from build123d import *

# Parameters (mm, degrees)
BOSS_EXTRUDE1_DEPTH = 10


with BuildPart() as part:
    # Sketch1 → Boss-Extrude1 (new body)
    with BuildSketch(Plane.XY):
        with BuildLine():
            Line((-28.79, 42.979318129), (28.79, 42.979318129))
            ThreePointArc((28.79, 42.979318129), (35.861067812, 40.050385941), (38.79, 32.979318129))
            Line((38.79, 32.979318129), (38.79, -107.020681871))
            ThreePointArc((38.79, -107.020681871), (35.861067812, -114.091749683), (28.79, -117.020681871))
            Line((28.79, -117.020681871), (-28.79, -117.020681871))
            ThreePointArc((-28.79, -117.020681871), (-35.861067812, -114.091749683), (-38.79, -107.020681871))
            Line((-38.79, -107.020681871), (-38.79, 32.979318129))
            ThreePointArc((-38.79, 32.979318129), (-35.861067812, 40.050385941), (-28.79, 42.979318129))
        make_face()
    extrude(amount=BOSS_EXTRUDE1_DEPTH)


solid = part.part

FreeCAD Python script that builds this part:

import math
import FreeCAD as App
import Part
import Sketcher

V = App.Vector

doc = App.newDocument("Part")
body = doc.addObject("PartDesign::Body", "Body")

# Sketch on XY plane
sketch1 = body.newObject("Sketcher::SketchObject", "Sketch")
sketch1.AttachmentSupport = (doc.getObject("XY_Plane"), [""])
sketch1.MapMode = "FlatFace"
sketch1.addGeometry(Part.LineSegment(V(29, 43, 0), V(-29, 43, 0)), False)
sketch1.addGeometry(Part.ArcOfCircle(Part.Circle(V(-29, 33, 0), V(0, 0, 1), 10), math.radians(90), math.radians(180)), False)
sketch1.addGeometry(Part.LineSegment(V(-39, 33, 0), V(-39, -107, 0)), False)
sketch1.addGeometry(Part.ArcOfCircle(Part.Circle(V(-29, -107, 0), V(0, 0, 1), 10), math.radians(180), math.radians(270)), False)
sketch1.addGeometry(Part.LineSegment(V(-29, -117, 0), V(29, -117, 0)), False)
sketch1.addGeometry(Part.ArcOfCircle(Part.Circle(V(29, -107, 0), V(0, 0, 1), 10), math.radians(-90), math.radians(0)), False)
sketch1.addGeometry(Part.LineSegment(V(39, -107, 0), V(39, 33, 0)), False)
sketch1.addGeometry(Part.ArcOfCircle(Part.Circle(V(29, 33, 0), V(0, 0, 1), 10), math.radians(0), math.radians(90)), False)
sketch1.addConstraint(Sketcher.Constraint("Tangent", 0, 2, 1, 1))
sketch1.addConstraint(Sketcher.Constraint("Tangent", 1, 2, 2, 1))
sketch1.addConstraint(Sketcher.Constraint("Tangent", 2, 2, 3, 1))
sketch1.addConstraint(Sketcher.Constraint("Tangent", 3, 2, 4, 1))
sketch1.addConstraint(Sketcher.Constraint("Tangent", 4, 2, 5, 1))
sketch1.addConstraint(Sketcher.Constraint("Tangent", 5, 2, 6, 1))
sketch1.addConstraint(Sketcher.Constraint("Tangent", 6, 2, 7, 1))
sketch1.addConstraint(Sketcher.Constraint("Tangent", 7, 2, 0, 1))
sketch1.addConstraint(Sketcher.Constraint("Horizontal", 0))
sketch1.addConstraint(Sketcher.Constraint("Vertical", 2))
sketch1.addConstraint(Sketcher.Constraint("Horizontal", 4))
sketch1.addConstraint(Sketcher.Constraint("Vertical", 6))
sketch1.addConstraint(Sketcher.Constraint("Equal", 1, 3))
sketch1.addConstraint(Sketcher.Constraint("Equal", 3, 5))
sketch1.addConstraint(Sketcher.Constraint("Equal", 5, 7))
sketch1.addConstraint(Sketcher.Constraint("Radius", 1, 10.0))
sketch1.addConstraint(Sketcher.Constraint("DistanceY", 2, 2, 2, 1, 140.0))
sketch1.addConstraint(Sketcher.Constraint("DistanceX", 0, 2, 0, 1, 57.58))
sketch1.addConstraint(Sketcher.Constraint("DistanceX", 1, 3, -1, 1, 28.79))
sketch1.addConstraint(Sketcher.Constraint("DistanceY", -1, 1, 1, 3, 32.979318))
pad1 = body.newObject("PartDesign::Pad", "Pad")
pad1.Profile = sketch1
pad1.Length = 10

doc.recompute()
